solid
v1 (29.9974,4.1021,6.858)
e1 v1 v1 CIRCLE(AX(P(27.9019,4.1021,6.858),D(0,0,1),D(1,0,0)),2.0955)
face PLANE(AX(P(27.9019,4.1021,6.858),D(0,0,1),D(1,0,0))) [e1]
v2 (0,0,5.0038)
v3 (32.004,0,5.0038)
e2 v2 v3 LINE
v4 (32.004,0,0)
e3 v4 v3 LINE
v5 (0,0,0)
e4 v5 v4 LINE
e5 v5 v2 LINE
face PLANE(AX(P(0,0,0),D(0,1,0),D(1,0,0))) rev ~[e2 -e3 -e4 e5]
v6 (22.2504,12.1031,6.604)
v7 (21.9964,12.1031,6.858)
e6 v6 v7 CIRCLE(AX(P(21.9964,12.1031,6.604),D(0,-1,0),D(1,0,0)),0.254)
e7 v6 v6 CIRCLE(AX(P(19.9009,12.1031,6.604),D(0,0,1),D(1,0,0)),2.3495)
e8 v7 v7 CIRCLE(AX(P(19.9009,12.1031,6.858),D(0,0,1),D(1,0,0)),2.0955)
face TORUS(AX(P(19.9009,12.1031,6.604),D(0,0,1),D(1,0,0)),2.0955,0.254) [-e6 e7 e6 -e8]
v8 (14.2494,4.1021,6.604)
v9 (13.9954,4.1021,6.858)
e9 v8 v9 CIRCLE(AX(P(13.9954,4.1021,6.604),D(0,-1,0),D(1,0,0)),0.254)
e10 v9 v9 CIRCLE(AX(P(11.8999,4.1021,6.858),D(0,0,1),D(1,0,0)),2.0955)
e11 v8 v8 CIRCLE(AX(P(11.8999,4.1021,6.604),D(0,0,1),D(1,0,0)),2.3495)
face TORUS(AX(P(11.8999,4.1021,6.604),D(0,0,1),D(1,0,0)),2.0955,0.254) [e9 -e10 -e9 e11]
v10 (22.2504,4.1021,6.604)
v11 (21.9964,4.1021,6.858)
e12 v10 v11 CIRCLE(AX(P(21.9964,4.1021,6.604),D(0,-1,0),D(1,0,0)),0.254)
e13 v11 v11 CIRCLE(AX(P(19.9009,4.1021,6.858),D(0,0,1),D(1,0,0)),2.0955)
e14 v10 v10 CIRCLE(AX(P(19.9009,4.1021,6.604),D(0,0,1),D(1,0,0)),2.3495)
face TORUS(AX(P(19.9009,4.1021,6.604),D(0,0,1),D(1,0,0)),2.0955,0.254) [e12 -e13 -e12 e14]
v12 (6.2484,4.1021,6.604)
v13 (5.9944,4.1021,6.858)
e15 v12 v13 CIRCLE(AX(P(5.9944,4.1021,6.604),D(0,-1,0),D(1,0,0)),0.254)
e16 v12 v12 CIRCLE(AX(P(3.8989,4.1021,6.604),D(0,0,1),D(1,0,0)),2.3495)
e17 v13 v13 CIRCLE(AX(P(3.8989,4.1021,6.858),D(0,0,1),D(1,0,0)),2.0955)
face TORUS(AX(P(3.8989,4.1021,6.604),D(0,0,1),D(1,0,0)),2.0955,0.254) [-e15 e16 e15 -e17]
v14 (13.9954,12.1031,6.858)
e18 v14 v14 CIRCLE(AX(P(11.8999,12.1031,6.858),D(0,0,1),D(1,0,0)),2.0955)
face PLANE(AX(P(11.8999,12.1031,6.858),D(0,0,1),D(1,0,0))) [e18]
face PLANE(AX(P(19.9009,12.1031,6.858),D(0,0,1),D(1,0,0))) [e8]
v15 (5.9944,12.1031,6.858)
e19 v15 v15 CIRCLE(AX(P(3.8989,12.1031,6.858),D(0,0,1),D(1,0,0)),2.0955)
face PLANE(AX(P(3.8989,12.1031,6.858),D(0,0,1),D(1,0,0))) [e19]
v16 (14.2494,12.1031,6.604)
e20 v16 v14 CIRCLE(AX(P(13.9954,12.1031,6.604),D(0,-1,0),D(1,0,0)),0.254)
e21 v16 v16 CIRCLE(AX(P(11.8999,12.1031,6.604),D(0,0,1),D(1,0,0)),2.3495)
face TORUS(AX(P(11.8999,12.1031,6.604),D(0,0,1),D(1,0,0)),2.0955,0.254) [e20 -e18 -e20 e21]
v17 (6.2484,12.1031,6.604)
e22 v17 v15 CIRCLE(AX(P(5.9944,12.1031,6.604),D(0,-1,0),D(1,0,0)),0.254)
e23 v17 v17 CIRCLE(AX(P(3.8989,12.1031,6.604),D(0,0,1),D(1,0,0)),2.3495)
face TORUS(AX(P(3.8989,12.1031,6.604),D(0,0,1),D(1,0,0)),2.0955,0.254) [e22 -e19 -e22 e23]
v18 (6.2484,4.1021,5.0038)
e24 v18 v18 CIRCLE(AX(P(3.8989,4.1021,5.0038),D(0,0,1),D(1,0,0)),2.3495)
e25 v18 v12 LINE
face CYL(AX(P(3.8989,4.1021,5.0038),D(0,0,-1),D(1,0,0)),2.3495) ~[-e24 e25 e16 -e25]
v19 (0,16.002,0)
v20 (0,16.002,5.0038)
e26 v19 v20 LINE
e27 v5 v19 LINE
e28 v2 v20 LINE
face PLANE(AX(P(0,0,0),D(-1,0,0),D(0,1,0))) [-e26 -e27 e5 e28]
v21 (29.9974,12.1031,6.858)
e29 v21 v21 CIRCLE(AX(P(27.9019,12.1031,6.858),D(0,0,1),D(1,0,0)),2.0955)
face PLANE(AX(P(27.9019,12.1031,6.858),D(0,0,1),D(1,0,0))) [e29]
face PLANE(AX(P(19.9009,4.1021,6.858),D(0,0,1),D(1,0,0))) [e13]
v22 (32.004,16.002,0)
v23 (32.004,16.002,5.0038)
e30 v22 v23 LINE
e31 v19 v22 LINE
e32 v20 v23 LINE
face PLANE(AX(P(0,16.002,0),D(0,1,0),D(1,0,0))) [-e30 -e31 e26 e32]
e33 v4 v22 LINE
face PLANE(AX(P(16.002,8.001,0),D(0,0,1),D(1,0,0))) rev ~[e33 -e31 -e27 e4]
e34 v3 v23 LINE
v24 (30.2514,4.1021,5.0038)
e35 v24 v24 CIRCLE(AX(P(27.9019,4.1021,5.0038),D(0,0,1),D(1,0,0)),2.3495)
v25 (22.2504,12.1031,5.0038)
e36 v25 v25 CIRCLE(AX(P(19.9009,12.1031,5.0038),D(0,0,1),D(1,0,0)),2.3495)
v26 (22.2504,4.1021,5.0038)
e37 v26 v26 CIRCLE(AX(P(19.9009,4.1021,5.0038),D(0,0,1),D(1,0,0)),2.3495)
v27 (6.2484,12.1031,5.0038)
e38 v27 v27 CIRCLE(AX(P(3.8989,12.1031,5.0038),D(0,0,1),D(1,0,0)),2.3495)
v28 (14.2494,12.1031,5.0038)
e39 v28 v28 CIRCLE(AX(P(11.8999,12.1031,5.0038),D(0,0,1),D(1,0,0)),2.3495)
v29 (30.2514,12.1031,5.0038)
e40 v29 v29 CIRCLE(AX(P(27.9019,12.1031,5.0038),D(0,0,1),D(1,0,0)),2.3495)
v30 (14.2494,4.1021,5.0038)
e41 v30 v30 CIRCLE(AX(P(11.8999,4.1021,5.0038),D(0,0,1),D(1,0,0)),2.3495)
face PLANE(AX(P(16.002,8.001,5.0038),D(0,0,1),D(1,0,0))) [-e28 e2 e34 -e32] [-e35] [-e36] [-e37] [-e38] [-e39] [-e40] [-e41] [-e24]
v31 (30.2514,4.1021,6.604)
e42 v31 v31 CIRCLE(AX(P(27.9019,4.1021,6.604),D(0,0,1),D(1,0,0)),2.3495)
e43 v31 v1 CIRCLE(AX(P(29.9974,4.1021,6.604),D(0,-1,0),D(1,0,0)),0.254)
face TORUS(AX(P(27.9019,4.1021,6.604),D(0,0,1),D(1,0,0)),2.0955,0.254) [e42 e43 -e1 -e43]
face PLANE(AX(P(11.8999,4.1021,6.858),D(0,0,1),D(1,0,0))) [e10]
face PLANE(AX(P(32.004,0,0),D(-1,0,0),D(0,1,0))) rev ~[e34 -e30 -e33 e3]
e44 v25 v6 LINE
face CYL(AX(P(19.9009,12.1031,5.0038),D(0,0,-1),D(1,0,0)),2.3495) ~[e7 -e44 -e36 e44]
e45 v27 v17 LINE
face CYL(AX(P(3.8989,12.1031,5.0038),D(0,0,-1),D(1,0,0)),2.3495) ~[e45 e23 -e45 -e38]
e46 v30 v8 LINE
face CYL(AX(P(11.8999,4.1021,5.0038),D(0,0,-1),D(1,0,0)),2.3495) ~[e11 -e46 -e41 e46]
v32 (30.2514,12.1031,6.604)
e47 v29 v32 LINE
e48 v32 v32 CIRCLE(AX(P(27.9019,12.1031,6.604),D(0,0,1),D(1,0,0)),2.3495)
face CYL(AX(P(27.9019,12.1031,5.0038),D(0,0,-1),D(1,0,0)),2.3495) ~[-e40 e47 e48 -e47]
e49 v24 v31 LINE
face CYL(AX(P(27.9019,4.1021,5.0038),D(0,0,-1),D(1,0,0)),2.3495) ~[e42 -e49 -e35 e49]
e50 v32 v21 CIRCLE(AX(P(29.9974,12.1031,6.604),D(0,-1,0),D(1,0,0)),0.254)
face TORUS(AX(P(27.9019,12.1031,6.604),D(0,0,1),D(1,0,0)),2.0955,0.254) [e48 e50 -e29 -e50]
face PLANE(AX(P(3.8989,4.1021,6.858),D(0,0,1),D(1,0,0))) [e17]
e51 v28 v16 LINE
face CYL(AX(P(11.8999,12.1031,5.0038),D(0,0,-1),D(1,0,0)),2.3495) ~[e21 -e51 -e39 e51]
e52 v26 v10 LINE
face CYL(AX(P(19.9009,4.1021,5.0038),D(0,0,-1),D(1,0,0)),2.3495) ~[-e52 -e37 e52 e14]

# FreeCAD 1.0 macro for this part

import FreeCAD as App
import Part
import Sketcher

V = App.Vector
Q = App.Units.Quantity


def edges_at(feature, points):
    """Names of the edges that pass closest to the given points."""
    edges = feature.Shape.Edges
    near = lambda p: min(range(len(edges)), key=lambda i: edges[i].distToShape(Part.Vertex(*p))[0])
    return sorted({f"Edge{near(p) + 1}" for p in points})

doc = App.newDocument("Part")
params = doc.addObject("Spreadsheet::Sheet", "Params")
for row, (alias, value) in enumerate([
    ("sketch1_width", "1.26 in"),
    ("sketch1_height", "0.63 in"),
    ("pad1_length", "0.197 in"),
    ("sketch2_diameter", "0.185 in"),
    ("pad2_length", "0.073 in"),
    ("fillet_radius", "0.01 in"),
], start=1):
    params.set(f"A{row}", alias)
    params.set(f"B{row}", "=" + value)
    params.setAlias(f"B{row}", alias)

body = doc.addObject("PartDesign::Body", "Body")

# Sketch on XY plane
sketch1 = body.newObject("Sketcher::SketchObject", "Sketch")
sketch1.AttachmentSupport = (doc.getObject("XY_Plane"), [""])
sketch1.MapMode = "FlatFace"
sketch1.addGeometry([
    Part.LineSegment(V(0, 16, 0), V(0, 0, 0)),
    Part.LineSegment(V(0, 0, 0), V(32, 0, 0)),
    Part.LineSegment(V(32, 0, 0), V(32, 16, 0)),
    Part.LineSegment(V(32, 16, 0), V(0, 16, 0)),
], False)
sketch1.addConstraint([
    Sketcher.Constraint("Coincident", 0, 2, 1, 1),
    Sketcher.Constraint("Coincident", 1, 2, 2, 1),
    Sketcher.Constraint("Coincident", 2, 2, 3, 1),
    Sketcher.Constraint("Coincident", 3, 2, 0, 1),
    Sketcher.Constraint("Vertical", 0),
    Sketcher.Constraint("Horizontal", 1),
    Sketcher.Constraint("Vertical", 2),
    Sketcher.Constraint("Horizontal", 3),
    Sketcher.Constraint("Coincident", 0, 2, -1, 1),
    Sketcher.Constraint("DistanceX", 1, 1, 1, 2, Q("1.26 in")),
    Sketcher.Constraint("DistanceY", 0, 2, 0, 1, Q("0.63 in")),
])
sketch1.setExpression("Constraints[9]", "Params.sketch1_width")
sketch1.setExpression("Constraints[10]", "Params.sketch1_height")
pad1 = body.newObject("PartDesign::Pad", "Pad")
pad1.Profile = sketch1
pad1.setExpression("Length", "Params.pad1_length")

# Sketch on XY plane
sketch2 = body.newObject("Sketcher::SketchObject", "Sketch001")
sketch2.AttachmentSupport = (doc.getObject("XY_Plane"), [""])
sketch2.MapMode = "FlatFace"
sketch2.AttachmentOffset = App.Placement(V(0, 0, 0.197 * 25.4), App.Rotation())
sketch2.addGeometry([
    Part.Circle(V(3.9, 12.1, 0), V(0, 0, 1), 2.3),  # 0
    Part.Circle(V(11.9, 12.1, 0), V(0, 0, 1), 2.3),  # 1
    Part.Circle(V(19.9, 12.1, 0), V(0, 0, 1), 2.3),  # 2
    Part.Circle(V(27.9, 12.1, 0), V(0, 0, 1), 2.3),  # 3
    Part.Circle(V(3.9, 4.1, 0), V(0, 0, 1), 2.3),  # 4
    Part.Circle(V(11.9, 4.1, 0), V(0, 0, 1), 2.3),  # 5
    Part.Circle(V(19.9, 4.1, 0), V(0, 0, 1), 2.3),  # 6
    Part.Circle(V(27.9, 4.1, 0), V(0, 0, 1), 2.3),  # 7
], False)
sketch2.addConstraint([
    Sketcher.Constraint("Equal", 0, 1),
    Sketcher.Constraint("Equal", 1, 2),
    Sketcher.Constraint("Equal", 2, 3),
    Sketcher.Constraint("Equal", 3, 4),
    Sketcher.Constraint("Equal", 4, 5),
    Sketcher.Constraint("Equal", 5, 6),
    Sketcher.Constraint("Equal", 6, 7),
    Sketcher.Constraint("Horizontal", 0, 3, 1, 3),
    Sketcher.Constraint("Horizontal", 1, 3, 2, 3),
    Sketcher.Constraint("Horizontal", 2, 3, 3, 3),
    Sketcher.Constraint("Horizontal", 4, 3, 5, 3),
    Sketcher.Constraint("Horizontal", 5, 3, 6, 3),
    Sketcher.Constraint("Horizontal", 6, 3, 7, 3),
    Sketcher.Constraint("Vertical", 0, 3, 4, 3),
    Sketcher.Constraint("Vertical", 1, 3, 5, 3),
    Sketcher.Constraint("Vertical", 2, 3, 6, 3),
    Sketcher.Constraint("Vertical", 3, 3, 7, 3),
    Sketcher.Constraint("Diameter", 0, Q("0.185 in")),
    Sketcher.Constraint("DistanceX", 0, 3, 2, 3, Q("0.63 in")),
    Sketcher.Constraint("DistanceX", 1, 3, 3, 3, Q("0.63 in")),
    Sketcher.Constraint("DistanceX", 0, 3, 1, 3, Q("0.315 in")),
    Sketcher.Constraint("DistanceY", 4, 3, 0, 3, Q("0.315 in")),
    Sketcher.Constraint("DistanceX", -1, 1, 0, 3, Q("0.1535 in")),
    Sketcher.Constraint("DistanceY", -1, 1, 0, 3, Q("0.4765 in")),
])
sketch2.setExpression("Constraints[17]", "Params.sketch2_diameter")
pad2 = body.newObject("PartDesign::Pad", "Pad001")
pad2.Profile = sketch2
pad2.setExpression("Length", "Params.pad2_length")
doc.recompute()

fillet = body.newObject("PartDesign::Fillet", "Fillet")
fillet.Base = (pad2, edges_at(pad2, [
    (1.549, 4.102, 6.858),
    (1.549, 12.103, 6.858),
    (9.55, 12.103, 6.858),
    (9.55, 4.102, 6.858),
    (17.551, 4.102, 6.858),
    (17.551, 12.103, 6.858),
    (25.552, 12.103, 6.858),
    (25.552, 4.102, 6.858),
]))
fillet.setExpression("Radius", "Params.fillet_radius")

doc.recompute()
